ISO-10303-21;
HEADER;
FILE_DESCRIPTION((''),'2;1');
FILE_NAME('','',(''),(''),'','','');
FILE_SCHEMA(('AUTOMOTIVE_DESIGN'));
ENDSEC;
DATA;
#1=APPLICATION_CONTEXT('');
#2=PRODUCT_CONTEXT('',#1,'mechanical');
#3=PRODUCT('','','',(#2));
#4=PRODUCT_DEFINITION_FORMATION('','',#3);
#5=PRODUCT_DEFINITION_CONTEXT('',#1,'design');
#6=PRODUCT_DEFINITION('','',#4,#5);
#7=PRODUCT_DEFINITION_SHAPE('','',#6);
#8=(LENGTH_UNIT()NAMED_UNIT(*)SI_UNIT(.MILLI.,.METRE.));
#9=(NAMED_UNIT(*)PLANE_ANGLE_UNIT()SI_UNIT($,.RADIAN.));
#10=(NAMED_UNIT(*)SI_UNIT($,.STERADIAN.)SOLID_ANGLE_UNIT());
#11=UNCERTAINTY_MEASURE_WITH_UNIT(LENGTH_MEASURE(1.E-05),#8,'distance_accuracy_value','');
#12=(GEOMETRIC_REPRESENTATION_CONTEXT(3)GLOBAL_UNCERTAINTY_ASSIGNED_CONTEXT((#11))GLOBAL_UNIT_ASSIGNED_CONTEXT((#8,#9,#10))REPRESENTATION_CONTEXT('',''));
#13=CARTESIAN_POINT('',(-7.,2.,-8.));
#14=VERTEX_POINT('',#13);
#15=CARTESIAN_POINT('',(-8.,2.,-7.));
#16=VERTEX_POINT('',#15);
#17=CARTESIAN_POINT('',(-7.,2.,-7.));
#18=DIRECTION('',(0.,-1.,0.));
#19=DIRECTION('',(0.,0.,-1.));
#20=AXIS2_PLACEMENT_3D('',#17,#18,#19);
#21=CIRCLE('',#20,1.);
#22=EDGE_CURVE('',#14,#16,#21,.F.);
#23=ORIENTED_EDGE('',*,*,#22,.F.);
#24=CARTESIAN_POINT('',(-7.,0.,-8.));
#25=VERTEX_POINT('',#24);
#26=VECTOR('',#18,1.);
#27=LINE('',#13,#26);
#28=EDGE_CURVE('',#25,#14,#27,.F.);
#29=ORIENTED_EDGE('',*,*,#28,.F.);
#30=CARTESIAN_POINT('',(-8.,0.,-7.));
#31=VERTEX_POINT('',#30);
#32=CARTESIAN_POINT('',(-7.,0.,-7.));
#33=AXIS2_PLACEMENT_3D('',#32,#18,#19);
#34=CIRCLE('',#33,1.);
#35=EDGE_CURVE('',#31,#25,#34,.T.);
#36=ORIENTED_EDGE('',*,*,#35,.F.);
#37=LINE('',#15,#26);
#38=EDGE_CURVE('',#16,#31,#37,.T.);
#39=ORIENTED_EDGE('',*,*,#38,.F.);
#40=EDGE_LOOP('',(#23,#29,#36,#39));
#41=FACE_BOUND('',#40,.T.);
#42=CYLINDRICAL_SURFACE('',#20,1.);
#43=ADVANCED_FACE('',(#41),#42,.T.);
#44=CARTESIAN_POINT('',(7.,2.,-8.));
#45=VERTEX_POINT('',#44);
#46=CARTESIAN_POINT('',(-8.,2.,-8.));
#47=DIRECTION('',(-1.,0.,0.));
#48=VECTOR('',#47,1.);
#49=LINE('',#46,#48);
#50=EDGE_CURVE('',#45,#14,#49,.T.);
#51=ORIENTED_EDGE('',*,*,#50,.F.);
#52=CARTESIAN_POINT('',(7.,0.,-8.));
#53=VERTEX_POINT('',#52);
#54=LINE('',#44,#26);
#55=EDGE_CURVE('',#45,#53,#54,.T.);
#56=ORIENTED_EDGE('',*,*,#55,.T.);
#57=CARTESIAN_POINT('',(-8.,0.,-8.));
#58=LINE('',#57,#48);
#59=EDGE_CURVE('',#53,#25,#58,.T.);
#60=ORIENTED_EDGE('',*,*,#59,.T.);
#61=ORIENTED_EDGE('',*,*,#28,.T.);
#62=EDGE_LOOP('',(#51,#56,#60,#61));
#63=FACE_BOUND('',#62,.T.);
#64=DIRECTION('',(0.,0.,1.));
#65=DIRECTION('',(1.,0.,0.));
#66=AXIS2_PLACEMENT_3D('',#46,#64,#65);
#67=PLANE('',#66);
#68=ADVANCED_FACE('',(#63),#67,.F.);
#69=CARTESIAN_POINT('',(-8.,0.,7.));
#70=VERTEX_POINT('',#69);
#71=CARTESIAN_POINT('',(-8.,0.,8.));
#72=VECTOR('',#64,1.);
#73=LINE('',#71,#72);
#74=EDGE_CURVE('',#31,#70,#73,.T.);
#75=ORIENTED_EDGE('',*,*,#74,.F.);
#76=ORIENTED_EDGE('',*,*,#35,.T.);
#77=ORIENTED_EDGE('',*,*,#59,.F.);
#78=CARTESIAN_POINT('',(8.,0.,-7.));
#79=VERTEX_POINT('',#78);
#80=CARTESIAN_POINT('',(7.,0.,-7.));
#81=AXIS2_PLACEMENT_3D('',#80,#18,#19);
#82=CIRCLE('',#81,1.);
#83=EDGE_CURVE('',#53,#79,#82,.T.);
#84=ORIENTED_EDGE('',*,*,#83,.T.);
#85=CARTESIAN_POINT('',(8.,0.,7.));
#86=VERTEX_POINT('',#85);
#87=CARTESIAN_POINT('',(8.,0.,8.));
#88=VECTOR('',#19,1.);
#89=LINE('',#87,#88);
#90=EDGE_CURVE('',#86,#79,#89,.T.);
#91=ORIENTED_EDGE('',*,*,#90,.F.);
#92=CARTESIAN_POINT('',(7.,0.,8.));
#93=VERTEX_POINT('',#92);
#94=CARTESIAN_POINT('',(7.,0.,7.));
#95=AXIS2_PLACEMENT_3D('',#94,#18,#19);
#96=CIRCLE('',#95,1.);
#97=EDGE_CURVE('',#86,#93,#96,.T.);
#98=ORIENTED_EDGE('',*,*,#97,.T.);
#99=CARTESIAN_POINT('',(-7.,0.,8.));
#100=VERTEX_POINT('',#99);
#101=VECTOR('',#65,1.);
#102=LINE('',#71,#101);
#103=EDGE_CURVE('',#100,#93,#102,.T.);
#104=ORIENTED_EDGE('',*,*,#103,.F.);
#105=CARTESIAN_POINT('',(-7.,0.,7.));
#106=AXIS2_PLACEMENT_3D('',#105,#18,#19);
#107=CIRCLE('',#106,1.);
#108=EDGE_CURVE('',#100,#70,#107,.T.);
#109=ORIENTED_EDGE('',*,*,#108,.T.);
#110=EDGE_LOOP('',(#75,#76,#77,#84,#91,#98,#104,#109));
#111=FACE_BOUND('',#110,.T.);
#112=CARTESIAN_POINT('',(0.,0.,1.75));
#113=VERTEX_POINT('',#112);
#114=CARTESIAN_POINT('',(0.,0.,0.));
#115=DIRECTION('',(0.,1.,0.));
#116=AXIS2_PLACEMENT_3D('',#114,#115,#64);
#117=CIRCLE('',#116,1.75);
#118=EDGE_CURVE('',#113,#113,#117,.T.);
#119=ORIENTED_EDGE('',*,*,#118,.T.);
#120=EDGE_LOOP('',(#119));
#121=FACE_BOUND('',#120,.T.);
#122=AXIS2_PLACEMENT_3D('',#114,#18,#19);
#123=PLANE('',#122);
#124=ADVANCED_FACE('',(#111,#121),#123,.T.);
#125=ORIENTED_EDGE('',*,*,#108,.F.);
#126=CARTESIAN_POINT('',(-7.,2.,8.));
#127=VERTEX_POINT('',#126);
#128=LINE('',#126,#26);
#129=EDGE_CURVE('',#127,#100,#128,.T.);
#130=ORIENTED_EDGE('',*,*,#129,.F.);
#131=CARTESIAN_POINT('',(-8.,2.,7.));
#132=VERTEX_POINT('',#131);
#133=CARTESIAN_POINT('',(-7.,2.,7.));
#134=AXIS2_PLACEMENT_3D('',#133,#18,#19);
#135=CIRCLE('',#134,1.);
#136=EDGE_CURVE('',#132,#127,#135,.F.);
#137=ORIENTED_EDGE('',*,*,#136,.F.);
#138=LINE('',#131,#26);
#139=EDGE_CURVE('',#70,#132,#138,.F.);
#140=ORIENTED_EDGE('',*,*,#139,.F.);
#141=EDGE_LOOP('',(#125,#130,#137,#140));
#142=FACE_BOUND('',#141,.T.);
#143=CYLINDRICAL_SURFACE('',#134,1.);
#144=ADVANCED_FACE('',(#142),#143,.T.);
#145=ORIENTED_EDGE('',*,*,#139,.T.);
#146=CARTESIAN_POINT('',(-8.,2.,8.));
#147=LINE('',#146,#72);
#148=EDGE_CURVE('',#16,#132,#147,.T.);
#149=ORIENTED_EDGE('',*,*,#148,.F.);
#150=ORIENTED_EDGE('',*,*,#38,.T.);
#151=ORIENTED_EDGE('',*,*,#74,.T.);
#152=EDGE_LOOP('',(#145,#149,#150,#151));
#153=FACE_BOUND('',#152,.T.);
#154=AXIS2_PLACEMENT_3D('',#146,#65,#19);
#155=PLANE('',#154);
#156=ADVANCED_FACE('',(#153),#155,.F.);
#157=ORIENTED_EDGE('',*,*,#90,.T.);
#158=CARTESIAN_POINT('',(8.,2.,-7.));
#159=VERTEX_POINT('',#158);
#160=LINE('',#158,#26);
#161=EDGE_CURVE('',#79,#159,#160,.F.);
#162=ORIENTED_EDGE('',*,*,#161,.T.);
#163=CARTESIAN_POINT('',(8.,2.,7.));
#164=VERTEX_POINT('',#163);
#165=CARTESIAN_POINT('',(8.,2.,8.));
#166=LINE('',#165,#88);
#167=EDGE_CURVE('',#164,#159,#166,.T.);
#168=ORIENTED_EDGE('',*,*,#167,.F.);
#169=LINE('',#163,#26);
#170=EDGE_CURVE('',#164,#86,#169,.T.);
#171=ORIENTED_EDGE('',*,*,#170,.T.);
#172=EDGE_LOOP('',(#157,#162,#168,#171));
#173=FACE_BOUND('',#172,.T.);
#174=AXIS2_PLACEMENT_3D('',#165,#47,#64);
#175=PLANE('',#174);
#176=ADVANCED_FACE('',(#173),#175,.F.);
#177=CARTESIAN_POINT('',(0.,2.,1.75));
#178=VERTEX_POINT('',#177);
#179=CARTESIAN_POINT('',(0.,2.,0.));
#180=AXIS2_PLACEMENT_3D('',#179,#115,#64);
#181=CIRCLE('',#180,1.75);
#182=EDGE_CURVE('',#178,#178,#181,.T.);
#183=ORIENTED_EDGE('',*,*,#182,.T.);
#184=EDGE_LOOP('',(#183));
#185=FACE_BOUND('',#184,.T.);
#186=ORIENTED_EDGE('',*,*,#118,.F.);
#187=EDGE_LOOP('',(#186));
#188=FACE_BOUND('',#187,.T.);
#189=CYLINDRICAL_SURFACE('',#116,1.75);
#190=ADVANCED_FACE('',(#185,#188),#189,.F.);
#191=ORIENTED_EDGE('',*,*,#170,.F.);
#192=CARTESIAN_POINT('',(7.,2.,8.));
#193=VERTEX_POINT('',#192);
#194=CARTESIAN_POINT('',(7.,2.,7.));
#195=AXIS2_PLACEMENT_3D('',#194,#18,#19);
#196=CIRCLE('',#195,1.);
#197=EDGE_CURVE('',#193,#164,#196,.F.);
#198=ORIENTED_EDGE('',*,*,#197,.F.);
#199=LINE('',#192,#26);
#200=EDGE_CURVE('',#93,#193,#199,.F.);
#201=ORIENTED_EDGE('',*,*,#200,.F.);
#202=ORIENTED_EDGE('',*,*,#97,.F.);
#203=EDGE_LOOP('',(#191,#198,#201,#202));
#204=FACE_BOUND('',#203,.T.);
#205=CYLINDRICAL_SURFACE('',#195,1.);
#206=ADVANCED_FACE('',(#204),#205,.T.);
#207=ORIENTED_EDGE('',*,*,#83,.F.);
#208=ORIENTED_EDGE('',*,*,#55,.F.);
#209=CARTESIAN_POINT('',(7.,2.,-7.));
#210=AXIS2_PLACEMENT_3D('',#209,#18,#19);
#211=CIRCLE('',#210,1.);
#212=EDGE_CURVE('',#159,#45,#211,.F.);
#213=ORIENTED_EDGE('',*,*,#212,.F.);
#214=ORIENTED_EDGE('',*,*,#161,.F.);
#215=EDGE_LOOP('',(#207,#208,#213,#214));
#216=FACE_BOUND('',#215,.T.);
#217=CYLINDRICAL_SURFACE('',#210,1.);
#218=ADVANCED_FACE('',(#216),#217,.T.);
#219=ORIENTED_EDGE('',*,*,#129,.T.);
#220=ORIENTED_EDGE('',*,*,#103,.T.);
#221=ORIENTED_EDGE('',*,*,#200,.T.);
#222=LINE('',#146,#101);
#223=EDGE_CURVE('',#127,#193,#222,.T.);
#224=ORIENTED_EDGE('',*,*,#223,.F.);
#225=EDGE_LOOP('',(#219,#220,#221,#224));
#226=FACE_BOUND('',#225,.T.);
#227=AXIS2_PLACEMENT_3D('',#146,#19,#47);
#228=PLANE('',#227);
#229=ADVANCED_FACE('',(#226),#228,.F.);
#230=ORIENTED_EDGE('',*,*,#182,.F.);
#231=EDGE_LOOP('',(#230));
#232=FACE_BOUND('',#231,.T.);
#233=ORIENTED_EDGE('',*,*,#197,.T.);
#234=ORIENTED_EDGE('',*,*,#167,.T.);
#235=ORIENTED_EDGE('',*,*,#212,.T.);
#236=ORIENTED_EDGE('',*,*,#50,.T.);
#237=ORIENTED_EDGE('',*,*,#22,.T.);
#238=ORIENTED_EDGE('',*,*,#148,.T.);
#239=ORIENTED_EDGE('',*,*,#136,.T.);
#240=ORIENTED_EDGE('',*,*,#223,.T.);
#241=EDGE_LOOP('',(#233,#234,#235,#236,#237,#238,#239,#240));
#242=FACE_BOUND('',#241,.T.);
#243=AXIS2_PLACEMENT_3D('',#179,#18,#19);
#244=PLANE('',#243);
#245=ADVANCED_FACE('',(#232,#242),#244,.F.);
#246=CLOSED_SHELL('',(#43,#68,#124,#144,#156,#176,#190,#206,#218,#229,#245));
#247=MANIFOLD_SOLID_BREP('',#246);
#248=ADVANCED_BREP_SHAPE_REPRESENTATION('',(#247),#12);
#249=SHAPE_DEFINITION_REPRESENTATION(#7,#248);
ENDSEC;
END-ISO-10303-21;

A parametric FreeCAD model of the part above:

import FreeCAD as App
import Part
import Sketcher

V = App.Vector
Q = App.Units.Quantity


def edges_at(feature, points):
    """Names of the edges that pass closest to the given points."""
    edges = feature.Shape.Edges
    near = lambda p: min(range(len(edges)), key=lambda i: edges[i].distToShape(Part.Vertex(*p))[0])
    return sorted({f"Edge{near(p) + 1}" for p in points})

doc = App.newDocument("Part")
body = doc.addObject("PartDesign::Body", "Body")

# Sketch on XZ plane
sketch1 = body.newObject("Sketcher::SketchObject", "Sketch")
sketch1.AttachmentSupport = (doc.getObject("XZ_Plane"), [""])
sketch1.MapMode = "FlatFace"
sketch1.addGeometry([
    Part.LineSegment(V(-8, -8, 0), V(-8, 8, 0)),
    Part.LineSegment(V(-8, 8, 0), V(8, 8, 0)),
    Part.LineSegment(V(8, 8, 0), V(8, -8, 0)),
    Part.LineSegment(V(8, -8, 0), V(-8, -8, 0)),
], False)
sketch1.addConstraint([
    Sketcher.Constraint("Coincident", 0, 2, 1, 1),
    Sketcher.Constraint("Coincident", 1, 2, 2, 1),
    Sketcher.Constraint("Coincident", 2, 2, 3, 1),
    Sketcher.Constraint("Coincident", 3, 2, 0, 1),
    Sketcher.Constraint("Vertical", 0),
    Sketcher.Constraint("Horizontal", 1),
    Sketcher.Constraint("Vertical", 2),
    Sketcher.Constraint("Horizontal", 3),
    Sketcher.Constraint("Symmetric", 0, 2, 2, 2, -1, 1),
    Sketcher.Constraint("Equal", 3, 0),
    Sketcher.Constraint("DistanceX", 1, 1, 1, 2, Q("16 mm")),
])
pad1 = body.newObject("PartDesign::Pad", "Pad")
pad1.Profile = sketch1
pad1.Length = 2
pad1.Reversed = True
doc.recompute()

fillet = body.newObject("PartDesign::Fillet", "Fillet")
fillet.Base = (pad1, edges_at(pad1, [
    (8, 1, 8),
    (-8, 1, 8),
    (-8, 1, -8),
    (8, 1, -8),
]))
fillet.Radius = 1

# Sketch on XZ plane
sketch2 = body.newObject("Sketcher::SketchObject", "Sketch001")
sketch2.AttachmentSupport = (doc.getObject("XZ_Plane"), [""])
sketch2.MapMode = "FlatFace"
sketch2.AttachmentOffset = App.Placement(V(0, 0, -2), App.Rotation())
sketch2.addGeometry(Part.Circle(V(0, 0, 0), V(0, 0, 1), 1.8), False)
sketch2.addConstraint([
    Sketcher.Constraint("Coincident", 0, 3, -1, 1),
    Sketcher.Constraint("Diameter", 0, Q("3.5 mm")),
])
pocket1 = body.newObject("PartDesign::Pocket", "Pocket")
pocket1.Profile = sketch2
pocket1.Type = "ThroughAll"
pocket1.Reversed = True

doc.recompute()
